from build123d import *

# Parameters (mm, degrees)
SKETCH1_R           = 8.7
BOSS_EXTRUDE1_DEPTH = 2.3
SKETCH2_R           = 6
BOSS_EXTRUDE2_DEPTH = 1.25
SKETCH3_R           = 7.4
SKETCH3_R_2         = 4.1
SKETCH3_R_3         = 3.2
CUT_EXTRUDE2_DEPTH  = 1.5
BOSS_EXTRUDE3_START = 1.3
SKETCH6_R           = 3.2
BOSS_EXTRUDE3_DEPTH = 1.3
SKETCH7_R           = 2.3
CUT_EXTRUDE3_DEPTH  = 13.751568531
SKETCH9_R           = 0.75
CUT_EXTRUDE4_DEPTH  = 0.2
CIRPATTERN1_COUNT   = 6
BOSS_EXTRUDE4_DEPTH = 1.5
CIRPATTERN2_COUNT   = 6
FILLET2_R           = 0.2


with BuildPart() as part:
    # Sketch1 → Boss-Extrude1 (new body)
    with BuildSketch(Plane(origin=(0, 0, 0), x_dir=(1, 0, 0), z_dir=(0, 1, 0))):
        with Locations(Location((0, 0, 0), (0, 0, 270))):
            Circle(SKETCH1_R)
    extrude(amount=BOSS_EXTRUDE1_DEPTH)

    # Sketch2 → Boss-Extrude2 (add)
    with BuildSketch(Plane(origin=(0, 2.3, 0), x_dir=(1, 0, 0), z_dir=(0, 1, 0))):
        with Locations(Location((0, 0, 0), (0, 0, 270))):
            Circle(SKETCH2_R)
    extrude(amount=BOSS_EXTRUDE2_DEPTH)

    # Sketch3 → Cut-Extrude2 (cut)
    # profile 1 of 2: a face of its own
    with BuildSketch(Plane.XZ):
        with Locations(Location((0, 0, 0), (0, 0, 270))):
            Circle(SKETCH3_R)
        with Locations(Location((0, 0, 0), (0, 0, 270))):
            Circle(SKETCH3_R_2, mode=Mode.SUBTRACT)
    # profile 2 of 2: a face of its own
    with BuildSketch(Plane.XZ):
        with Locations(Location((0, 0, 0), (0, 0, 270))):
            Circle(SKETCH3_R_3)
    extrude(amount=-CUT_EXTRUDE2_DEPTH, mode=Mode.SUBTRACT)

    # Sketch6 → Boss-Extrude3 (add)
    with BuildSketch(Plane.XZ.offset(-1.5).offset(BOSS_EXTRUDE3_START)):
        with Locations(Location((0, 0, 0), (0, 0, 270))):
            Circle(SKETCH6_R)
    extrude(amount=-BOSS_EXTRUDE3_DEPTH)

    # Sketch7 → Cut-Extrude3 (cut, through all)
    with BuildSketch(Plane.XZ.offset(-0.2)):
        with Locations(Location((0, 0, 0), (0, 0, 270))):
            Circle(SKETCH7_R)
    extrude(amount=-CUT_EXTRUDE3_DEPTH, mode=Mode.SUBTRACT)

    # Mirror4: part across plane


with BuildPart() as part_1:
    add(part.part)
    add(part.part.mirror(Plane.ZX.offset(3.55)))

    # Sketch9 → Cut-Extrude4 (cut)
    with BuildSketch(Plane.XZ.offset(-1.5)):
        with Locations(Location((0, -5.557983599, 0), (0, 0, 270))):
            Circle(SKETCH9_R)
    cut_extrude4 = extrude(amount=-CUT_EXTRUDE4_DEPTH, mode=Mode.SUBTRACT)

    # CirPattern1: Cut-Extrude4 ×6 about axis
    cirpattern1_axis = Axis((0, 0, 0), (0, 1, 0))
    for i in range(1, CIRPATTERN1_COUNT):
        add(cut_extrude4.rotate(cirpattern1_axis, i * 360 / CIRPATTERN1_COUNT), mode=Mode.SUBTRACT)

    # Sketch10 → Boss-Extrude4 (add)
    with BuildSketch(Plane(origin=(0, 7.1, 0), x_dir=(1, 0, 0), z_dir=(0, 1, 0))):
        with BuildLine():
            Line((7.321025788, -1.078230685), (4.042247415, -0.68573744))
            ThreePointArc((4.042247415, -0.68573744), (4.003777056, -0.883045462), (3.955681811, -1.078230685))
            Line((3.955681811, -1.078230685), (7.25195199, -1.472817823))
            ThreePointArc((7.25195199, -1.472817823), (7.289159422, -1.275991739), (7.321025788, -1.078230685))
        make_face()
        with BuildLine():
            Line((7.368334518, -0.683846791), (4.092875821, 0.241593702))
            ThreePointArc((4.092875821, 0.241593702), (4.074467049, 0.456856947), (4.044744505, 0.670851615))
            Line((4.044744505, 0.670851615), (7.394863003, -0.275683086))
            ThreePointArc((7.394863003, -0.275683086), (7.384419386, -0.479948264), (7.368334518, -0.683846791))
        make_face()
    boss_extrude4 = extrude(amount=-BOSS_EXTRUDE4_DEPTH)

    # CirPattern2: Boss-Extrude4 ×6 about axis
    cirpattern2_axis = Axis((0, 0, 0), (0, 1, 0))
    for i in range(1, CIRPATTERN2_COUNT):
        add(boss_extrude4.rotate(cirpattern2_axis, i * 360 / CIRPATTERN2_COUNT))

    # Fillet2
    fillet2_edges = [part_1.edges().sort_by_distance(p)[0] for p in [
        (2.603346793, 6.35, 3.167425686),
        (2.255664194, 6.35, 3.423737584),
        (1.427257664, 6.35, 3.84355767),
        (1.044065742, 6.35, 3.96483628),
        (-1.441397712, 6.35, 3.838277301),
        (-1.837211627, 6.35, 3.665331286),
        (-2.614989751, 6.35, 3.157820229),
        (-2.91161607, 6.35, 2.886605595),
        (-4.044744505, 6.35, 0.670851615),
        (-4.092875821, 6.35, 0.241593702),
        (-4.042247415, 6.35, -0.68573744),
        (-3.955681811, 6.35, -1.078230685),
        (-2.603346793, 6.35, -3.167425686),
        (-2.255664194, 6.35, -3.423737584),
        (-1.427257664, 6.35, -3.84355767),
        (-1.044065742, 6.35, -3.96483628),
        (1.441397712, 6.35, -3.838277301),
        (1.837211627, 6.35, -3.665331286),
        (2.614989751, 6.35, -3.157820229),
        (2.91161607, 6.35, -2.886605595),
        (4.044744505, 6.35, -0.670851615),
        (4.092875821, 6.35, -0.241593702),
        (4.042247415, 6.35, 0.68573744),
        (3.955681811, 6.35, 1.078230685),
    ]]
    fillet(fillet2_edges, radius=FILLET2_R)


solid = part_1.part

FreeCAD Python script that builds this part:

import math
import FreeCAD as App
import Part
import Sketcher

V = App.Vector
Q = App.Units.Quantity


def edges_at(feature, points):
    """Names of the edges that pass closest to the given points."""
    edges = feature.Shape.Edges
    near = lambda p: min(range(len(edges)), key=lambda i: edges[i].distToShape(Part.Vertex(*p))[0])
    return sorted({f"Edge{near(p) + 1}" for p in points})

doc = App.newDocument("Part")
body = doc.addObject("PartDesign::Body", "Body")

sketch1 = body.newObject("Sketcher::SketchObject", "Sketch")
sketch1.AttachmentSupport = (doc.getObject("XZ_Plane"), [""])
sketch1.MapMode = "FlatFace"
sketch1.addGeometry(Part.Circle(V(0, 0, 0), V(0, 0, 1), 9), False)
sketch1.addConstraint(Sketcher.Constraint("Coincident", 0, 3, -1, 1))
sketch1.addConstraint(Sketcher.Constraint("Diameter", 0, Q("17.4 mm")))
pad1 = body.newObject("PartDesign::Pad", "Pad")
pad1.Profile = sketch1
pad1.Length = 2.3
pad1.Reversed = True

sketch2 = body.newObject("Sketcher::SketchObject", "Sketch001")
sketch2.AttachmentSupport = (doc.getObject("XZ_Plane"), [""])
sketch2.MapMode = "FlatFace"
sketch2.AttachmentOffset = App.Placement(V(0, 0, -2.3), App.Rotation())
sketch2.addGeometry(Part.Circle(V(0, 0, 0), V(0, 0, 1), 6), False)
sketch2.addConstraint(Sketcher.Constraint("Coincident", 0, 3, -1, 1))
sketch2.addConstraint(Sketcher.Constraint("Diameter", 0, Q("12 mm")))
pad2 = body.newObject("PartDesign::Pad", "Pad001")
pad2.Profile = sketch2
pad2.Length = 1.25
pad2.Reversed = True

sketch3 = body.newObject("Sketcher::SketchObject", "Sketch002")
sketch3.AttachmentSupport = (doc.getObject("XZ_Plane"), [""])
sketch3.MapMode = "FlatFace"
sketch3.addGeometry(Part.Circle(V(0, 0, 0), V(0, 0, 1), 7.4), False)
sketch3.addGeometry(Part.Circle(V(0, 0, 0), V(0, 0, 1), 4.1), False)
sketch3.addGeometry(Part.Circle(V(0, 0, 0), V(0, 0, 1), 3.2), False)
sketch3.addConstraint(Sketcher.Constraint("Coincident", 0, 3, -1, 1))
sketch3.addConstraint(Sketcher.Constraint("Coincident", 1, 3, -1, 1))
sketch3.addConstraint(Sketcher.Constraint("Coincident", 2, 3, -1, 1))
sketch3.addConstraint(Sketcher.Constraint("Diameter", 0, Q("14.8 mm")))
sketch3.addConstraint(Sketcher.Constraint("Diameter", 1, Q("8.2 mm")))
sketch3.addConstraint(Sketcher.Constraint("Diameter", 2, Q("6.4 mm")))
pocket1 = body.newObject("PartDesign::Pocket", "Pocket")
pocket1.Profile = sketch3
pocket1.Length = 1.5

sketch4 = body.newObject("Sketcher::SketchObject", "Sketch003")
sketch4.AttachmentSupport = (doc.getObject("XZ_Plane"), [""])
sketch4.MapMode = "FlatFace"
sketch4.AttachmentOffset = App.Placement(V(0, 0, -0.2), App.Rotation())
sketch4.addGeometry(Part.Circle(V(0, 0, 0), V(0, 0, 1), 3.2), False)
sketch4.addConstraint(Sketcher.Constraint("Coincident", 0, 3, -1, 1))
sketch4.addConstraint(Sketcher.Constraint("Diameter", 0, Q("6.4 mm")))
pad3 = body.newObject("PartDesign::Pad", "Pad002")
pad3.Profile = sketch4
pad3.Length = 1.3
pad3.Reversed = True

sketch5 = body.newObject("Sketcher::SketchObject", "Sketch004")
sketch5.AttachmentSupport = (doc.getObject("XZ_Plane"), [""])
sketch5.MapMode = "FlatFace"
sketch5.AttachmentOffset = App.Placement(V(0, 0, -0.2), App.Rotation())
sketch5.addGeometry(Part.Circle(V(0, 0, 0), V(0, 0, 1), 2.3), False)
sketch5.addConstraint(Sketcher.Constraint("Coincident", 0, 3, -1, 1))
sketch5.addConstraint(Sketcher.Constraint("Diameter", 0, Q("4.6 mm")))
pocket2 = body.newObject("PartDesign::Pocket", "Pocket001")
pocket2.Profile = sketch5
pocket2.Type = "ThroughAll"
body2 = doc.addObject("PartDesign::Body", "Body001")
doc.recompute()

body2.BaseFeature = body
doc.recompute()

mirroring = doc.addObject("Part::Mirroring", "Mirroring")
mirroring.Source = body
mirroring.Base = V(0, 3.55, 0)
mirroring.Normal = V(0, 1, 0)
body3 = doc.addObject("PartDesign::Body", "Body002")
body3.BaseFeature = mirroring
boolean = body2.newObject("PartDesign::Boolean", "Boolean")
boolean.Type = "Fuse"
boolean.addObjects([body3])
doc.recompute()

sketch6 = body2.newObject("Sketcher::SketchObject", "Sketch005")
sketch6.AttachmentSupport = (doc.getObject("XZ_Plane001"), [""])
sketch6.MapMode = "FlatFace"
sketch6.AttachmentOffset = App.Placement(V(0, 0, -1.5), App.Rotation())
sketch6.addGeometry(Part.Circle(V(0, -5.6, 0), V(0, 0, 1), 0.8), False)
sketch6.addConstraint(Sketcher.Constraint("PointOnObject", 0, 3, -2))
sketch6.addConstraint(Sketcher.Constraint("Diameter", 0, Q("1.5 mm")))
sketch6.addConstraint(Sketcher.Constraint("DistanceY", 0, 3, -1, 1, Q("5.557984 mm")))
pocket3 = body2.newObject("PartDesign::Pocket", "Pocket002")
pocket3.Profile = sketch6
pocket3.Length = 0.2
doc.recompute()

polarpattern = body2.newObject("PartDesign::PolarPattern", "PolarPattern")
polarpattern.Originals = [pocket3]
polarpattern.Axis = (doc.getObject("Y_Axis001"), [""])
polarpattern.Angle = 360
polarpattern.Occurrences = 6
body2.Tip = polarpattern

sketch7 = body2.newObject("Sketcher::SketchObject", "Sketch006")
sketch7.AttachmentSupport = (doc.getObject("XZ_Plane001"), [""])
sketch7.MapMode = "FlatFace"
sketch7.AttachmentOffset = App.Placement(V(0, 0, -7.1), App.Rotation())
sketch7.addGeometry(Part.LineSegment(V(7.32, 1.08, 0), V(4.04, 0.69, 0)), False)
sketch7.addGeometry(Part.ArcOfCircle(Part.Circle(V(0, 0, 0), V(0, 0, 1), 4.1), math.radians(9.63), math.radians(15.25)), False)
sketch7.addGeometry(Part.LineSegment(V(3.96, 1.08, 0), V(7.25, 1.47, 0)), False)
sketch7.addGeometry(Part.ArcOfCircle(Part.Circle(V(0, 0, 0), V(0, 0, 1), 7.4), math.radians(8.38), math.radians(11.48)), False)
sketch7.addGeometry(Part.LineSegment(V(4.09, -0.24, 0), V(7.37, 0.68, 0)), False)
sketch7.addGeometry(Part.ArcOfCircle(Part.Circle(V(0, 0, 0), V(0, 0, 1), 7.4), math.radians(2.14), math.radians(5.3)), False)
sketch7.addGeometry(Part.LineSegment(V(7.39, 0.28, 0), V(4.04, -0.67, 0)), False)
sketch7.addGeometry(Part.ArcOfCircle(Part.Circle(V(0, 0, 0), V(0, 0, 1), 4.1), math.radians(-9.42), math.radians(-3.38)), False)
sketch7.addConstraint(Sketcher.Constraint("Coincident", 0, 2, 1, 1))
sketch7.addConstraint(Sketcher.Constraint("Coincident", 1, 2, 2, 1))
sketch7.addConstraint(Sketcher.Constraint("Coincident", 2, 2, 3, 2))
sketch7.addConstraint(Sketcher.Constraint("Coincident", 3, 1, 0, 1))
sketch7.addConstraint(Sketcher.Constraint("Coincident", 4, 2, 5, 2))
sketch7.addConstraint(Sketcher.Constraint("Coincident", 5, 1, 6, 1))
sketch7.addConstraint(Sketcher.Constraint("Coincident", 6, 2, 7, 1))
sketch7.addConstraint(Sketcher.Constraint("Coincident", 7, 2, 4, 1))
sketch7.addConstraint(Sketcher.Constraint("Coincident", 1, 3, -1, 1))
sketch7.addConstraint(Sketcher.Constraint("Coincident", 3, 3, -1, 1))
sketch7.addConstraint(Sketcher.Constraint("Coincident", 5, 3, -1, 1))
sketch7.addConstraint(Sketcher.Constraint("Coincident", 7, 3, -1, 1))
sketch7.addConstraint(Sketcher.Constraint("Equal", 3, 5))
sketch7.addConstraint(Sketcher.Constraint("Equal", 1, 7))
sketch7.addConstraint(Sketcher.Constraint("Parallel", 0, 2))
sketch7.addConstraint(Sketcher.Constraint("Parallel", 4, 6))
sketch7.addConstraint(Sketcher.Constraint("Horizontal", 1, 2, 3, 1))
sketch7.addConstraint(Sketcher.Constraint("Radius", 1, Q("4.1 mm")))
sketch7.addConstraint(Sketcher.Constraint("Radius", 3, Q("7.400001 mm")))
sketch7.addConstraint(Sketcher.Constraint("DistanceY", 6, 2, 4, 2, Q("1.354698 mm")))
sketch7.addConstraint(Sketcher.Constraint("DistanceX", -1, 1, 1, 2, Q("3.955682 mm")))
sketch7.addConstraint(Sketcher.Constraint("DistanceX", -1, 1, 2, 2, Q("7.251952 mm")))
sketch7.addConstraint(Sketcher.Constraint("DistanceY", 6, 2, -1, 1, Q("0.670852 mm")))
sketch7.addConstraint(Sketcher.Constraint("DistanceX", 4, 2, 5, 1, Q("0.026528 mm")))
pad4 = body2.newObject("PartDesign::Pad", "Pad003")
pad4.Profile = sketch7
pad4.Length = 1.5
doc.recompute()

polarpattern2 = body2.newObject("PartDesign::PolarPattern", "PolarPattern001")
polarpattern2.Originals = [pad4]
polarpattern2.Axis = (doc.getObject("Y_Axis001"), [""])
polarpattern2.Angle = 360
polarpattern2.Occurrences = 6
body2.Tip = polarpattern2
doc.recompute()

fillet = body2.newObject("PartDesign::Fillet", "Fillet")
fillet.Base = (polarpattern2, edges_at(polarpattern2, [
    (2.603, 6.35, 3.167),
    (2.256, 6.35, 3.424),
    (1.427, 6.35, 3.844),
    (1.044, 6.35, 3.965),
    (-1.441, 6.35, 3.838),
    (-1.837, 6.35, 3.665),
    (-2.615, 6.35, 3.158),
    (-2.912, 6.35, 2.887),
    (-4.045, 6.35, 0.671),
    (-4.093, 6.35, 0.242),
    (-4.042, 6.35, -0.686),
    (-3.956, 6.35, -1.078),
    (-2.603, 6.35, -3.167),
    (-2.256, 6.35, -3.424),
    (-1.427, 6.35, -3.844),
    (-1.044, 6.35, -3.965),
    (1.441, 6.35, -3.838),
    (1.837, 6.35, -3.665),
    (2.615, 6.35, -3.158),
    (2.912, 6.35, -2.887),
    (4.045, 6.35, -0.671),
    (4.093, 6.35, -0.242),
    (4.042, 6.35, 0.686),
    (3.956, 6.35, 1.078),
]))
fillet.Radius = 0.2
mirroring.Visibility = False

doc.recompute()
